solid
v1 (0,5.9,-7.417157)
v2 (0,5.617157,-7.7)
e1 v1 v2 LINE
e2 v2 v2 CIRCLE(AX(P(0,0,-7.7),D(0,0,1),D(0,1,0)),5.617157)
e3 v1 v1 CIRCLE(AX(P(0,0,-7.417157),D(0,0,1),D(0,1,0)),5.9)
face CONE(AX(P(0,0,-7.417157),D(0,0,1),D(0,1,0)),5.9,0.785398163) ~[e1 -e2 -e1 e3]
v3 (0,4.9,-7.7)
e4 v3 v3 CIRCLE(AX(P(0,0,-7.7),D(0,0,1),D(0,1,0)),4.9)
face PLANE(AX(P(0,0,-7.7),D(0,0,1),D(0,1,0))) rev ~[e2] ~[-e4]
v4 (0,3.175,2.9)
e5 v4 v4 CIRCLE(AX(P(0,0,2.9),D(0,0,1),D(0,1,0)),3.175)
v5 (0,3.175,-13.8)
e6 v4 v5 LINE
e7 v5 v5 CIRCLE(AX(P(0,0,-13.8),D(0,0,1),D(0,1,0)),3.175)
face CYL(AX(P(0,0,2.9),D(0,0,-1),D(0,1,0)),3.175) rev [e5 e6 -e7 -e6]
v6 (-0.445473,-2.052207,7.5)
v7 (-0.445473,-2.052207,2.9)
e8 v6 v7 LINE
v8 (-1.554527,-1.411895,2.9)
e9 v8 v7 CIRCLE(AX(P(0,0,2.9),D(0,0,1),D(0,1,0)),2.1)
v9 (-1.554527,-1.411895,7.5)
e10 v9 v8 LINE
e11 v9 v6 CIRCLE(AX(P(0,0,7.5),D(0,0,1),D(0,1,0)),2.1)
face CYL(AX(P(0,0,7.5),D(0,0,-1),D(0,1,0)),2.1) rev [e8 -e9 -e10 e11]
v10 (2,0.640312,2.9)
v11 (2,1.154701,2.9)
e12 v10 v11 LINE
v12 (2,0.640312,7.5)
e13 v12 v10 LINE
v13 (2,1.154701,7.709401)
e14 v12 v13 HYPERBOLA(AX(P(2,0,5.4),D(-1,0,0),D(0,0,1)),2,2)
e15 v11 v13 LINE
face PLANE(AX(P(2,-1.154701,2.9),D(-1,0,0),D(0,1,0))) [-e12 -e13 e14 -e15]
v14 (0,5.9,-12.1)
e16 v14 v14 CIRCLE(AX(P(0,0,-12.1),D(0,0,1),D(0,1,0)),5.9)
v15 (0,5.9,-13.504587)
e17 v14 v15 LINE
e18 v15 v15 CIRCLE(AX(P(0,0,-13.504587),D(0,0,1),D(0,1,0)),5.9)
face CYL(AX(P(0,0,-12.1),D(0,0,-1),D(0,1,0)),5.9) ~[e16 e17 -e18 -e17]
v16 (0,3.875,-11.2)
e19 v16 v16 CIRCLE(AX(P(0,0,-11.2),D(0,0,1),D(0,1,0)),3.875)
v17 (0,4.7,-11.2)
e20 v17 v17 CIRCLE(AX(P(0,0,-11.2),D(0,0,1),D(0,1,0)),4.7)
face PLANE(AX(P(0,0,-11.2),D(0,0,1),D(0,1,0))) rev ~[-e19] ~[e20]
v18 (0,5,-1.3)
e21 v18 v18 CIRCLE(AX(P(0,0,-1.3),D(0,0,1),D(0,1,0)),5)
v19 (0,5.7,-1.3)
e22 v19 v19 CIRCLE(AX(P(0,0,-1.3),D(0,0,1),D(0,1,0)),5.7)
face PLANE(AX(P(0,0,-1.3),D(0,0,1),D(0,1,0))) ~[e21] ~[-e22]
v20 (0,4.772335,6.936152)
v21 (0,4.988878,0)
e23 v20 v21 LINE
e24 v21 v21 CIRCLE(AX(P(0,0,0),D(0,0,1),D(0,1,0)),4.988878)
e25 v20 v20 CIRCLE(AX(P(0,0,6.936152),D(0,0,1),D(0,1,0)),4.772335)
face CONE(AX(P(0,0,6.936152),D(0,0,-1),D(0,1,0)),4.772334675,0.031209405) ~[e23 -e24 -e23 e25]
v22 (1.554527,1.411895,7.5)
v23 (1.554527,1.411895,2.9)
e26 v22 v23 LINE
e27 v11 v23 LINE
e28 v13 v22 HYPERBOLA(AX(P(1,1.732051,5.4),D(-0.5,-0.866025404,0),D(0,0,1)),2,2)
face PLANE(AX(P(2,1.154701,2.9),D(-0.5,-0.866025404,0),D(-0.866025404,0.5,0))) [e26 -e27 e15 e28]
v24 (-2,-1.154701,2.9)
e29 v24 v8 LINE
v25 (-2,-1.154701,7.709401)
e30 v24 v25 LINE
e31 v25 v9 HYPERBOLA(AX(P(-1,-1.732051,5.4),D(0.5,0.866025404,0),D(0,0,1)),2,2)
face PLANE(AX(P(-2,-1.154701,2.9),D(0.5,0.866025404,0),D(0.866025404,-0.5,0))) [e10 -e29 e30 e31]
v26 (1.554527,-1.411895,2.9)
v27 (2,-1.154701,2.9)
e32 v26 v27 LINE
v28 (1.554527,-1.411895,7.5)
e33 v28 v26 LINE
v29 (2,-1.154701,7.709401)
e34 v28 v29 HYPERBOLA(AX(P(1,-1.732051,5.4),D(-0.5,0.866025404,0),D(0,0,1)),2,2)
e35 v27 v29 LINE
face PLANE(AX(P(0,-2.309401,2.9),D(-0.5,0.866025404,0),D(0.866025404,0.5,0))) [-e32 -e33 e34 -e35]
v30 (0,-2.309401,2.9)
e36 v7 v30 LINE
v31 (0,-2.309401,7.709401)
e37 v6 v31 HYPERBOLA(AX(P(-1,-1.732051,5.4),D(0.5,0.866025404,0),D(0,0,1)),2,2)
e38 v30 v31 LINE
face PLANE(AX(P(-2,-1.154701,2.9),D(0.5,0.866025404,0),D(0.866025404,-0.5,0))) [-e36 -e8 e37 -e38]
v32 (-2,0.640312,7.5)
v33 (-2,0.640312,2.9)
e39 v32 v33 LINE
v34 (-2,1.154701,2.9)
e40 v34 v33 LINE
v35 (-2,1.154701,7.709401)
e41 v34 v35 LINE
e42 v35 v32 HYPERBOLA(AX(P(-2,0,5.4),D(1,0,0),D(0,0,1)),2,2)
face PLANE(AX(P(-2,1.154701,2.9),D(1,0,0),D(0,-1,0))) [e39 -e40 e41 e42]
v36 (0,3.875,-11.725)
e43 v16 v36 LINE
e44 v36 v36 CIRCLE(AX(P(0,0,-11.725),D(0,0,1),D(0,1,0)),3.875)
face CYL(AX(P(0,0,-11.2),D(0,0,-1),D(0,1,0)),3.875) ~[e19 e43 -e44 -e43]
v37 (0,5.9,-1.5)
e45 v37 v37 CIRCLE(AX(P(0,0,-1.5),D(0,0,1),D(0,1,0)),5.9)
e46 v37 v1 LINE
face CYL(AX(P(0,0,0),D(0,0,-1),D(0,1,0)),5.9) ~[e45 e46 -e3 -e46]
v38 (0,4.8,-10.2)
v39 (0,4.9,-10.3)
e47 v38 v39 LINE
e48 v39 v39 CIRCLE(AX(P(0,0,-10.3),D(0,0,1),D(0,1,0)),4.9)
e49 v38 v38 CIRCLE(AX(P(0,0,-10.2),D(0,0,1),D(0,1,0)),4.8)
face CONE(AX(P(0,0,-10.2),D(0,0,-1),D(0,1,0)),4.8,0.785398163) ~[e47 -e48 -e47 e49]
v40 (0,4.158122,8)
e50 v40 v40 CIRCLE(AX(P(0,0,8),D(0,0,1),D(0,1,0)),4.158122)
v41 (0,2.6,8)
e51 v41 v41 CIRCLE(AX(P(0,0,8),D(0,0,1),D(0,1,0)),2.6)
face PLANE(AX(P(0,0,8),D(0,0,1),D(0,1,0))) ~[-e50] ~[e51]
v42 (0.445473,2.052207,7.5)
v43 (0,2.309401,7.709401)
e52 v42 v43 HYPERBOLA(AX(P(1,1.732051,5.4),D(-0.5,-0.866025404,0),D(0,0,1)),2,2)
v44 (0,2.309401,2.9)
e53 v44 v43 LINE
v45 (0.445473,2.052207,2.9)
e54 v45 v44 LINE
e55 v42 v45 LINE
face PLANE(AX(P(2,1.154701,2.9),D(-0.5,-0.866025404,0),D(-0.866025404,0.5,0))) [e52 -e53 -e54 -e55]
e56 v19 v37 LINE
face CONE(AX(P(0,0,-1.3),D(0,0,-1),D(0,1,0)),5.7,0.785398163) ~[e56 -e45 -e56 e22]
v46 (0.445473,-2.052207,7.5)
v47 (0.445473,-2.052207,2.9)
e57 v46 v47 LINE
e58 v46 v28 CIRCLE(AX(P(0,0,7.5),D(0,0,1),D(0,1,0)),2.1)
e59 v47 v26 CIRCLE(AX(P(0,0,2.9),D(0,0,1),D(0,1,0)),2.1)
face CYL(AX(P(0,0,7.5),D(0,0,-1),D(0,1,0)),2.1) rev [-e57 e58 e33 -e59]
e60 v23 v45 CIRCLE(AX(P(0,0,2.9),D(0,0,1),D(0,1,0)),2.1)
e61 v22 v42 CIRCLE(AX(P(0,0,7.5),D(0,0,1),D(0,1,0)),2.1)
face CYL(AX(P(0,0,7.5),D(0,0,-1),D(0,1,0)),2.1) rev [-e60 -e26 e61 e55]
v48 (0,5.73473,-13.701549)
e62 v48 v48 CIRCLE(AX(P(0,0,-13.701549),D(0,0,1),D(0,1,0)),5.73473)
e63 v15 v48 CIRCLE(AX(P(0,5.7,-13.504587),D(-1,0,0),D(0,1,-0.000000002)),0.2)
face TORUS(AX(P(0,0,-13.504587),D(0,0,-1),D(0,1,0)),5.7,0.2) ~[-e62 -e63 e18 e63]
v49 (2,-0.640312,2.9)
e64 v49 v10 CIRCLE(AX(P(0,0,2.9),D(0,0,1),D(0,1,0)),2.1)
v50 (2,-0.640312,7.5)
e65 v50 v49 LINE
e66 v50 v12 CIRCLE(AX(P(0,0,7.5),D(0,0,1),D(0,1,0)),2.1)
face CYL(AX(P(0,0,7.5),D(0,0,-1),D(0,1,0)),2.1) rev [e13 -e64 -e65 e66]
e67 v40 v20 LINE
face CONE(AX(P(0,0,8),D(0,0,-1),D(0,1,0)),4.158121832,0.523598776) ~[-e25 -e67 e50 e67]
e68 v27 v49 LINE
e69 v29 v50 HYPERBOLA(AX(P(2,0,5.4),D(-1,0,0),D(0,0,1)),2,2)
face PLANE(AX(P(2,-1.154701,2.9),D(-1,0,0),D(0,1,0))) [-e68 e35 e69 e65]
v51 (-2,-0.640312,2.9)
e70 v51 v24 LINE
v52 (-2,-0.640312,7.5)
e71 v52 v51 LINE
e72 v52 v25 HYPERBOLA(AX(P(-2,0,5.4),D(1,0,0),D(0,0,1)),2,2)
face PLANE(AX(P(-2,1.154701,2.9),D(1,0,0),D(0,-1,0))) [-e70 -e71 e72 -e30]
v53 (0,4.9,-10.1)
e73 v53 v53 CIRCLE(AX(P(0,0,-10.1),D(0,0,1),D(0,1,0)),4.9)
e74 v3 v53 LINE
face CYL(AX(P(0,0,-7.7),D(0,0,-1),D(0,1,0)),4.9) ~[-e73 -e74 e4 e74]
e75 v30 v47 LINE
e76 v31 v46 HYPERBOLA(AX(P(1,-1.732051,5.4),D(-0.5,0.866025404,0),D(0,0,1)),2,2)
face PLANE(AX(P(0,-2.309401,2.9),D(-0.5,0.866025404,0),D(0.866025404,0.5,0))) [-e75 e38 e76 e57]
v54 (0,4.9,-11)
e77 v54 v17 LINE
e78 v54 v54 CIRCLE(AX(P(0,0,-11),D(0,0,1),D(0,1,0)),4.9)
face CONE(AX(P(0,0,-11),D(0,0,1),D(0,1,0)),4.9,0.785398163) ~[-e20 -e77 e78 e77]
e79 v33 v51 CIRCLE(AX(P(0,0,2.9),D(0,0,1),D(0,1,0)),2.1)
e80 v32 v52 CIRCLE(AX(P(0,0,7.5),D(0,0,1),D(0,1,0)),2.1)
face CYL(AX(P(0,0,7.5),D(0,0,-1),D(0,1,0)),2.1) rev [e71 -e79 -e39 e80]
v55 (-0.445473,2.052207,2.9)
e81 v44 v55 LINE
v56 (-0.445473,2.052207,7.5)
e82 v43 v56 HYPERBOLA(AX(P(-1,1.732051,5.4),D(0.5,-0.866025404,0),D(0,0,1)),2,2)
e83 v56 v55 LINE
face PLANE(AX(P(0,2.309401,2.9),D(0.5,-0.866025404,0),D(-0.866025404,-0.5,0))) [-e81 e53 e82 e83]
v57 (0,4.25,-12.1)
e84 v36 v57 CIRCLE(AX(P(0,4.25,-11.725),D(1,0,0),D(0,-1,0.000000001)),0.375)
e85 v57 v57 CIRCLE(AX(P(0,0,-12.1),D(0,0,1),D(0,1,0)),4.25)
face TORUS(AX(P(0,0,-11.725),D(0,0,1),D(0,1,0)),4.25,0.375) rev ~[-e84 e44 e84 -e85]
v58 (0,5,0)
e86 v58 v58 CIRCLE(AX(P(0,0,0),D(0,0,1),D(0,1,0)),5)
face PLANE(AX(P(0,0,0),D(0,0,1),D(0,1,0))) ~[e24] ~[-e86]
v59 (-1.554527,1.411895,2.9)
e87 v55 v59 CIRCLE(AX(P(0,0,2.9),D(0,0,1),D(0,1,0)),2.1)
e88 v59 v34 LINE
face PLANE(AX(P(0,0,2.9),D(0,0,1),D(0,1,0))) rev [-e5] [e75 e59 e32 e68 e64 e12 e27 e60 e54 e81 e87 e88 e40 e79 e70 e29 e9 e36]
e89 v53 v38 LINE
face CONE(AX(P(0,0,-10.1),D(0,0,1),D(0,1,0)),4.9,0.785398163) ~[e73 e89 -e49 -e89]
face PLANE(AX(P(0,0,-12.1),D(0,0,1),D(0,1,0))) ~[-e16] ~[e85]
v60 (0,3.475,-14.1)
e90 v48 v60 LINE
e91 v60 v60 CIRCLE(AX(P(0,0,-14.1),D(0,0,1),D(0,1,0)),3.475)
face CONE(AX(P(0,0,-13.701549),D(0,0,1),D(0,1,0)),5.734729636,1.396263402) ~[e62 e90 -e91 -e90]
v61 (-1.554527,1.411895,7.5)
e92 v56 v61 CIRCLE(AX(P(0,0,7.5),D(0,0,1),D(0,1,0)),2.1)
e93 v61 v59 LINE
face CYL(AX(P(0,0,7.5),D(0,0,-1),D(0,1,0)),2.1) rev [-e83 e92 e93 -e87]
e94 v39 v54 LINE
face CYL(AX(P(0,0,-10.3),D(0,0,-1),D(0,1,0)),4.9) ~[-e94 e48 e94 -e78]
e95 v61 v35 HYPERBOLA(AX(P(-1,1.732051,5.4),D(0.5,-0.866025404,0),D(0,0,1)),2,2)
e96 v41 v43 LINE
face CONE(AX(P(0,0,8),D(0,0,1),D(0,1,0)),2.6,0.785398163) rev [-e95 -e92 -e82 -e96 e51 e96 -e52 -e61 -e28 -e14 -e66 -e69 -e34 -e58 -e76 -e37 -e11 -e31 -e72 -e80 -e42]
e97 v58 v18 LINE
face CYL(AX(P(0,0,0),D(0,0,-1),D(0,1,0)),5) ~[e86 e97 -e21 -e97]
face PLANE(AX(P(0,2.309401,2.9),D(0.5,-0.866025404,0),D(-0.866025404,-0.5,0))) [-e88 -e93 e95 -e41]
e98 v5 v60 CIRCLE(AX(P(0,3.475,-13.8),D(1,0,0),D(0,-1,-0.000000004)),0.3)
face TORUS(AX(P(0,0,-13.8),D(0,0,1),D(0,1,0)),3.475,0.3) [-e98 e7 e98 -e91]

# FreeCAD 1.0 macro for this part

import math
import FreeCAD as App
import Part
import Sketcher

V = App.Vector
Q = App.Units.Quantity

doc = App.newDocument("Part")
params = doc.addObject("Spreadsheet::Sheet", "Params")
for row, (alias, value) in enumerate([
    ("sketch1_radius", "0.2 mm"),
    ("sketch1_width", "5.9 mm"),
    ("sketch1_height", "14.1 mm"),
    ("sketch1_height2", "0.7 mm"),
    ("sketch1_height3", "2.4 mm"),
    ("revolution_angle", "360 deg"),
    ("sketch2_height", "8 mm"),
    ("revolution2_angle", "360 deg"),
    ("sketch3_width", "0.9 mm"),
    ("sketch3_width2", "0.7 mm"),
    ("sketch3_height", "1.3 mm"),
    ("groove_angle", "360 deg"),
    ("sketch4_radius", "0.3 mm"),
    ("sketch4_width", "2.6 mm"),
    ("sketch4_height", "22.1 mm"),
    ("sketch4_height2", "16.7 mm"),
    ("sketch4_height3", "4.6 mm"),
    ("groove2_angle", "360 deg"),
    ("pocket1_length", "5.1 mm"),
], start=1):
    params.set(f"A{row}", alias)
    params.set(f"B{row}", "=" + value)
    params.setAlias(f"B{row}", alias)

body = doc.addObject("PartDesign::Body", "Body")

sketch1 = body.newObject("Sketcher::SketchObject", "Sketch")
sketch1.AttachmentSupport = (doc.getObject("YZ_Plane"), [""])
sketch1.MapMode = "FlatFace"
sketch1.addGeometry([
    Part.LineSegment(V(5.9, 0, 0), V(0, 0, 0)),
    Part.LineSegment(V(0, 0, 0), V(0, -14.1, 0)),
    Part.LineSegment(V(0, -14.1, 0), V(3.48, -14.1, 0)),
    Part.LineSegment(V(3.48, -14.1, 0), V(5.73, -13.7, 0)),
    Part.ArcOfCircle(Part.Circle(V(5.7, -13.5, 0), V(0, 0, 1), 0.2), math.radians(-80), math.radians(0)),
    Part.LineSegment(V(5.9, -13.5, 0), V(5.9, -12.1, 0)),
    Part.LineSegment(V(5.9, -12.1, 0), V(4.25, -12.1, 0)),
    Part.ArcOfCircle(Part.Circle(V(4.25, -11.72, 0), V(0, 0, 1), 0.38), math.radians(180), math.radians(270)),
    Part.LineSegment(V(3.88, -11.72, 0), V(3.88, -11.2, 0)),
    Part.LineSegment(V(3.88, -11.2, 0), V(4.7, -11.2, 0)),
    Part.LineSegment(V(4.7, -11.2, 0), V(4.9, -11, 0)),
    Part.LineSegment(V(4.9, -11, 0), V(4.9, -10.3, 0)),
    Part.LineSegment(V(4.9, -10.3, 0), V(4.8, -10.2, 0)),
    Part.LineSegment(V(4.8, -10.2, 0), V(4.9, -10.1, 0)),
    Part.LineSegment(V(4.9, -10.1, 0), V(4.9, -7.7, 0)),
    Part.LineSegment(V(4.9, -7.7, 0), V(5.62, -7.7, 0)),
    Part.LineSegment(V(5.62, -7.7, 0), V(5.9, -7.42, 0)),
    Part.LineSegment(V(5.9, -7.42, 0), V(5.9, 0, 0)),
], False)
sketch1.addConstraint([
    Sketcher.Constraint("Coincident", 0, 2, 1, 1),
    Sketcher.Constraint("Coincident", 1, 2, 2, 1),
    Sketcher.Constraint("Coincident", 2, 2, 3, 1),
    Sketcher.Constraint("Tangent", 3, 2, 4, 1),
    Sketcher.Constraint("Tangent", 4, 2, 5, 1),
    Sketcher.Constraint("Coincident", 5, 2, 6, 1),
    Sketcher.Constraint("Tangent", 6, 2, 7, 2),
    Sketcher.Constraint("Tangent", 7, 1, 8, 1),
    Sketcher.Constraint("Coincident", 8, 2, 9, 1),
    Sketcher.Constraint("Coincident", 9, 2, 10, 1),
    Sketcher.Constraint("Coincident", 10, 2, 11, 1),
    Sketcher.Constraint("Coincident", 11, 2, 12, 1),
    Sketcher.Constraint("Coincident", 12, 2, 13, 1),
    Sketcher.Constraint("Coincident", 13, 2, 14, 1),
    Sketcher.Constraint("Coincident", 14, 2, 15, 1),
    Sketcher.Constraint("Coincident", 15, 2, 16, 1),
    Sketcher.Constraint("Coincident", 16, 2, 17, 1),
    Sketcher.Constraint("Coincident", 17, 2, 0, 1),
    Sketcher.Constraint("Horizontal", 0),
    Sketcher.Constraint("Vertical", 1),
    Sketcher.Constraint("Horizontal", 2),
    Sketcher.Constraint("Vertical", 5),
    Sketcher.Constraint("Horizontal", 6),
    Sketcher.Constraint("Vertical", 8),
    Sketcher.Constraint("Horizontal", 9),
    Sketcher.Constraint("Vertical", 11),
    Sketcher.Constraint("Vertical", 14),
    Sketcher.Constraint("Horizontal", 15),
    Sketcher.Constraint("Vertical", 17),
    Sketcher.Constraint("Coincident", 0, 2, -1, 1),
    Sketcher.Constraint("Perpendicular", 10, 12),
    Sketcher.Constraint("Perpendicular", 12, 13),
    Sketcher.Constraint("Parallel", 13, 16),
    Sketcher.Constraint("Vertical", 11, 2, 13, 2),
    Sketcher.Constraint("Vertical", 5, 2, 16, 2),
    Sketcher.Constraint("Equal", 12, 13),
    Sketcher.Constraint("Radius", 4, Q("0.2 mm")),
    Sketcher.Constraint("Angle", 3, Q("10 deg")),
    Sketcher.Constraint("DistanceX", 0, 2, 0, 1, Q("5.9 mm")),
    Sketcher.Constraint("DistanceY", 1, 2, 1, 1, Q("14.1 mm")),
    Sketcher.Constraint("DistanceY", 11, 1, 11, 2, Q("0.7 mm")),
    Sketcher.Constraint("DistanceY", 14, 1, 14, 2, Q("2.4 mm")),
    Sketcher.Constraint("DistanceY", 10, 2, -1, 1, Q("11 mm")),
    Sketcher.Constraint("Radius", 7, Q("0.375 mm")),
    Sketcher.Constraint("DistanceY", 2, 2, 5, 2, Q("2 mm")),
    Sketcher.Constraint("DistanceY", 9, 2, 12, 2, Q("1 mm")),
    Sketcher.Constraint("DistanceX", 14, 2, 16, 2, Q("1 mm")),
    Sketcher.Constraint("Distance", 16, Q("0.4 mm")),
    Sketcher.Constraint("DistanceX", 6, 2, 6, 1, Q("1.65 mm")),
    Sketcher.Constraint("DistanceY", 8, 2, -1, 1, Q("11.2 mm")),
    Sketcher.Constraint("DistanceX", 2, 2, 7, 1, Q("0.4 mm")),
])
sketch1.setExpression("Constraints[36]", "Params.sketch1_radius")
sketch1.setExpression("Constraints[38]", "Params.sketch1_width")
sketch1.setExpression("Constraints[39]", "Params.sketch1_height")
sketch1.setExpression("Constraints[40]", "Params.sketch1_height2")
sketch1.setExpression("Constraints[41]", "Params.sketch1_height3")
revolution = body.newObject("PartDesign::Revolution", "Revolution")
revolution.Profile = sketch1
revolution.ReferenceAxis = (sketch1, ["V_Axis"])
revolution.setExpression("Angle", "Params.revolution_angle")

sketch2 = body.newObject("Sketcher::SketchObject", "Sketch001")
sketch2.AttachmentSupport = (doc.getObject("YZ_Plane"), [""])
sketch2.MapMode = "FlatFace"
sketch2.addGeometry([
    Part.LineSegment(V(4.2, 8, 0), V(0, 8, 0)),
    Part.LineSegment(V(0, 8, 0), V(0, 0, 0)),
    Part.LineSegment(V(0, 0, 0), V(5, 0, 0)),
    Part.LineSegment(V(5, 0, 0), V(4.8, 6.9, 0)),
    Part.LineSegment(V(4.8, 6.9, 0), V(4.2, 8, 0)),
], False)
sketch2.addConstraint([
    Sketcher.Constraint("Coincident", 0, 2, 1, 1),
    Sketcher.Constraint("Coincident", 1, 2, 2, 1),
    Sketcher.Constraint("Coincident", 2, 2, 3, 1),
    Sketcher.Constraint("Coincident", 3, 2, 4, 1),
    Sketcher.Constraint("Coincident", 4, 2, 0, 1),
    Sketcher.Constraint("Horizontal", 0),
    Sketcher.Constraint("Vertical", 1),
    Sketcher.Constraint("Horizontal", 2),
    Sketcher.Constraint("Coincident", 1, 2, -1, 1),
    Sketcher.Constraint("DistanceY", 1, 2, 1, 1, Q("8 mm")),
    Sketcher.Constraint("Angle", 4, Q("120 deg")),
    Sketcher.Constraint("DistanceX", 0, 2, 0, 1, Q("4.158122 mm")),
    Sketcher.Constraint("DistanceX", 2, 1, 2, 2, Q("4.988878 mm")),
    Sketcher.Constraint("Distance", 3, Q("6.939532 mm")),
])
sketch2.setExpression("Constraints[9]", "Params.sketch2_height")
revolution2 = body.newObject("PartDesign::Revolution", "Revolution001")
revolution2.Profile = sketch2
revolution2.ReferenceAxis = (sketch2, ["V_Axis"])
revolution2.setExpression("Angle", "Params.revolution2_angle")

sketch3 = body.newObject("Sketcher::SketchObject", "Sketch002")
sketch3.AttachmentSupport = (doc.getObject("YZ_Plane"), [""])
sketch3.MapMode = "FlatFace"
sketch3.addGeometry([
    Part.LineSegment(V(5.9, 0, 0), V(5, 0, 0)),
    Part.LineSegment(V(5, 0, 0), V(5, -1.3, 0)),
    Part.LineSegment(V(5, -1.3, 0), V(5.7, -1.3, 0)),
    Part.LineSegment(V(5.7, -1.3, 0), V(5.9, -1.5, 0)),
    Part.LineSegment(V(5.9, -1.5, 0), V(5.9, 0, 0)),
], False)
sketch3.addConstraint([
    Sketcher.Constraint("Coincident", 0, 2, 1, 1),
    Sketcher.Constraint("Coincident", 1, 2, 2, 1),
    Sketcher.Constraint("Coincident", 2, 2, 3, 1),
    Sketcher.Constraint("Coincident", 3, 2, 4, 1),
    Sketcher.Constraint("Coincident", 4, 2, 0, 1),
    Sketcher.Constraint("Horizontal", 0),
    Sketcher.Constraint("Vertical", 1),
    Sketcher.Constraint("Horizontal", 2),
    Sketcher.Constraint("Vertical", 4),
    Sketcher.Constraint("PointOnObject", 0, 2, -1),
    Sketcher.Constraint("Angle", 3, Q("-45 deg")),
    Sketcher.Constraint("DistanceX", 0, 2, 0, 1, Q("0.9 mm")),
    Sketcher.Constraint("DistanceX", 2, 1, 2, 2, Q("0.7 mm")),
    Sketcher.Constraint("DistanceY", 1, 2, 1, 1, Q("1.3 mm")),
    Sketcher.Constraint("DistanceX", -1, 1, 0, 2, Q("5 mm")),
])
sketch3.setExpression("Constraints[11]", "Params.sketch3_width")
sketch3.setExpression("Constraints[12]", "Params.sketch3_width2")
sketch3.setExpression("Constraints[13]", "Params.sketch3_height")
groove = body.newObject("PartDesign::Groove", "Groove")
groove.Profile = sketch3
groove.ReferenceAxis = (sketch3, ["V_Axis"])
groove.setExpression("Angle", "Params.groove_angle")

sketch4 = body.newObject("Sketcher::SketchObject", "Sketch003")
sketch4.AttachmentSupport = (doc.getObject("YZ_Plane"), [""])
sketch4.MapMode = "FlatFace"
sketch4.addGeometry([
    Part.LineSegment(V(2.6, 8, 0), V(0, 8, 0)),
    Part.LineSegment(V(0, 8, 0), V(0, -14.1, 0)),
    Part.LineSegment(V(0, -14.1, 0), V(3.48, -14.1, 0)),
    Part.ArcOfCircle(Part.Circle(V(3.48, -13.8, 0), V(0, 0, 1), 0.3), math.radians(-180), math.radians(-90)),
    Part.LineSegment(V(3.17, -13.8, 0), V(3.17, 2.9, 0)),
    Part.LineSegment(V(3.17, 2.9, 0), V(2.1, 2.9, 0)),
    Part.LineSegment(V(2.1, 2.9, 0), V(2.1, 7.5, 0)),
    Part.LineSegment(V(2.1, 7.5, 0), V(2.6, 8, 0)),
], False)
sketch4.addConstraint([
    Sketcher.Constraint("Coincident", 0, 2, 1, 1),
    Sketcher.Constraint("Coincident", 1, 2, 2, 1),
    Sketcher.Constraint("Tangent", 2, 2, 3, 2),
    Sketcher.Constraint("Tangent", 3, 1, 4, 1),
    Sketcher.Constraint("Coincident", 4, 2, 5, 1),
    Sketcher.Constraint("Coincident", 5, 2, 6, 1),
    Sketcher.Constraint("Coincident", 6, 2, 7, 1),
    Sketcher.Constraint("Coincident", 7, 2, 0, 1),
    Sketcher.Constraint("Horizontal", 0),
    Sketcher.Constraint("Vertical", 1),
    Sketcher.Constraint("Horizontal", 2),
    Sketcher.Constraint("Vertical", 4),
    Sketcher.Constraint("Horizontal", 5),
    Sketcher.Constraint("Vertical", 6),
    Sketcher.Constraint("PointOnObject", 0, 2, -2),
    Sketcher.Constraint("Radius", 3, Q("0.3 mm")),
    Sketcher.Constraint("Angle", 7, Q("45 deg")),
    Sketcher.Constraint("DistanceX", 0, 2, 0, 1, Q("2.6 mm")),
    Sketcher.Constraint("DistanceY", 1, 2, 1, 1, Q("22.1 mm")),
    Sketcher.Constraint("DistanceY", 4, 1, 4, 2, Q("16.7 mm")),
    Sketcher.Constraint("DistanceY", 6, 1, 6, 2, Q("4.6 mm")),
    Sketcher.Constraint("DistanceY", -1, 1, 0, 2, Q("8 mm")),
    Sketcher.Constraint("DistanceX", 2, 1, 2, 2, Q("3.475 mm")),
])
sketch4.setExpression("Constraints[15]", "Params.sketch4_radius")
sketch4.setExpression("Constraints[17]", "Params.sketch4_width")
sketch4.setExpression("Constraints[18]", "Params.sketch4_height")
sketch4.setExpression("Constraints[19]", "Params.sketch4_height2")
sketch4.setExpression("Constraints[20]", "Params.sketch4_height3")
groove2 = body.newObject("PartDesign::Groove", "Groove001")
groove2.Profile = sketch4
groove2.ReferenceAxis = (sketch4, ["V_Axis"])
groove2.setExpression("Angle", "Params.groove2_angle")

sketch5 = body.newObject("Sketcher::SketchObject", "Sketch004")
sketch5.AttachmentSupport = (doc.getObject("XY_Plane"), [""])
sketch5.MapMode = "FlatFace"
sketch5.AttachmentOffset = App.Placement(V(0, 0, 2.9), App.Rotation())
sketch5.addGeometry([
    Part.LineSegment(V(-2, -1.2, 0), V(0, -2.3, 0)),
    Part.LineSegment(V(0, -2.3, 0), V(2, -1.2, 0)),
    Part.LineSegment(V(2, -1.2, 0), V(2, 1.2, 0)),
    Part.LineSegment(V(2, 1.2, 0), V(0, 2.3, 0)),
    Part.LineSegment(V(0, 2.3, 0), V(-2, 1.2, 0)),
    Part.LineSegment(V(-2, 1.2, 0), V(-2, -1.2, 0)),
], False)
sketch5.addConstraint([
    Sketcher.Constraint("Coincident", 0, 2, 1, 1),
    Sketcher.Constraint("Coincident", 1, 2, 2, 1),
    Sketcher.Constraint("Coincident", 2, 2, 3, 1),
    Sketcher.Constraint("Coincident", 3, 2, 4, 1),
    Sketcher.Constraint("Coincident", 4, 2, 5, 1),
    Sketcher.Constraint("Coincident", 5, 2, 0, 1),
    Sketcher.Constraint("Vertical", 2),
    Sketcher.Constraint("Vertical", 5),
    Sketcher.Constraint("Symmetric", 0, 2, 3, 2, -1, 1),
    Sketcher.Constraint("Symmetric", 1, 2, 4, 2, -1, 1),
    Sketcher.Constraint("PointOnObject", 0, 2, -2),
    Sketcher.Constraint("Parallel", 0, 3),
    Sketcher.Constraint("Horizontal", 2, 2, 4, 2),
    Sketcher.Constraint("Angle", 0, Q("-30 deg")),
    Sketcher.Constraint("DistanceX", -1, 1, 1, 2, Q("2 mm")),
    Sketcher.Constraint("DistanceY", 2, 1, 2, 2, Q("2.309401 mm")),
])
pocket1 = body.newObject("PartDesign::Pocket", "Pocket")
pocket1.Profile = sketch5
pocket1.setExpression("Length", "Params.pocket1_length")
pocket1.Reversed = True

doc.recompute()
